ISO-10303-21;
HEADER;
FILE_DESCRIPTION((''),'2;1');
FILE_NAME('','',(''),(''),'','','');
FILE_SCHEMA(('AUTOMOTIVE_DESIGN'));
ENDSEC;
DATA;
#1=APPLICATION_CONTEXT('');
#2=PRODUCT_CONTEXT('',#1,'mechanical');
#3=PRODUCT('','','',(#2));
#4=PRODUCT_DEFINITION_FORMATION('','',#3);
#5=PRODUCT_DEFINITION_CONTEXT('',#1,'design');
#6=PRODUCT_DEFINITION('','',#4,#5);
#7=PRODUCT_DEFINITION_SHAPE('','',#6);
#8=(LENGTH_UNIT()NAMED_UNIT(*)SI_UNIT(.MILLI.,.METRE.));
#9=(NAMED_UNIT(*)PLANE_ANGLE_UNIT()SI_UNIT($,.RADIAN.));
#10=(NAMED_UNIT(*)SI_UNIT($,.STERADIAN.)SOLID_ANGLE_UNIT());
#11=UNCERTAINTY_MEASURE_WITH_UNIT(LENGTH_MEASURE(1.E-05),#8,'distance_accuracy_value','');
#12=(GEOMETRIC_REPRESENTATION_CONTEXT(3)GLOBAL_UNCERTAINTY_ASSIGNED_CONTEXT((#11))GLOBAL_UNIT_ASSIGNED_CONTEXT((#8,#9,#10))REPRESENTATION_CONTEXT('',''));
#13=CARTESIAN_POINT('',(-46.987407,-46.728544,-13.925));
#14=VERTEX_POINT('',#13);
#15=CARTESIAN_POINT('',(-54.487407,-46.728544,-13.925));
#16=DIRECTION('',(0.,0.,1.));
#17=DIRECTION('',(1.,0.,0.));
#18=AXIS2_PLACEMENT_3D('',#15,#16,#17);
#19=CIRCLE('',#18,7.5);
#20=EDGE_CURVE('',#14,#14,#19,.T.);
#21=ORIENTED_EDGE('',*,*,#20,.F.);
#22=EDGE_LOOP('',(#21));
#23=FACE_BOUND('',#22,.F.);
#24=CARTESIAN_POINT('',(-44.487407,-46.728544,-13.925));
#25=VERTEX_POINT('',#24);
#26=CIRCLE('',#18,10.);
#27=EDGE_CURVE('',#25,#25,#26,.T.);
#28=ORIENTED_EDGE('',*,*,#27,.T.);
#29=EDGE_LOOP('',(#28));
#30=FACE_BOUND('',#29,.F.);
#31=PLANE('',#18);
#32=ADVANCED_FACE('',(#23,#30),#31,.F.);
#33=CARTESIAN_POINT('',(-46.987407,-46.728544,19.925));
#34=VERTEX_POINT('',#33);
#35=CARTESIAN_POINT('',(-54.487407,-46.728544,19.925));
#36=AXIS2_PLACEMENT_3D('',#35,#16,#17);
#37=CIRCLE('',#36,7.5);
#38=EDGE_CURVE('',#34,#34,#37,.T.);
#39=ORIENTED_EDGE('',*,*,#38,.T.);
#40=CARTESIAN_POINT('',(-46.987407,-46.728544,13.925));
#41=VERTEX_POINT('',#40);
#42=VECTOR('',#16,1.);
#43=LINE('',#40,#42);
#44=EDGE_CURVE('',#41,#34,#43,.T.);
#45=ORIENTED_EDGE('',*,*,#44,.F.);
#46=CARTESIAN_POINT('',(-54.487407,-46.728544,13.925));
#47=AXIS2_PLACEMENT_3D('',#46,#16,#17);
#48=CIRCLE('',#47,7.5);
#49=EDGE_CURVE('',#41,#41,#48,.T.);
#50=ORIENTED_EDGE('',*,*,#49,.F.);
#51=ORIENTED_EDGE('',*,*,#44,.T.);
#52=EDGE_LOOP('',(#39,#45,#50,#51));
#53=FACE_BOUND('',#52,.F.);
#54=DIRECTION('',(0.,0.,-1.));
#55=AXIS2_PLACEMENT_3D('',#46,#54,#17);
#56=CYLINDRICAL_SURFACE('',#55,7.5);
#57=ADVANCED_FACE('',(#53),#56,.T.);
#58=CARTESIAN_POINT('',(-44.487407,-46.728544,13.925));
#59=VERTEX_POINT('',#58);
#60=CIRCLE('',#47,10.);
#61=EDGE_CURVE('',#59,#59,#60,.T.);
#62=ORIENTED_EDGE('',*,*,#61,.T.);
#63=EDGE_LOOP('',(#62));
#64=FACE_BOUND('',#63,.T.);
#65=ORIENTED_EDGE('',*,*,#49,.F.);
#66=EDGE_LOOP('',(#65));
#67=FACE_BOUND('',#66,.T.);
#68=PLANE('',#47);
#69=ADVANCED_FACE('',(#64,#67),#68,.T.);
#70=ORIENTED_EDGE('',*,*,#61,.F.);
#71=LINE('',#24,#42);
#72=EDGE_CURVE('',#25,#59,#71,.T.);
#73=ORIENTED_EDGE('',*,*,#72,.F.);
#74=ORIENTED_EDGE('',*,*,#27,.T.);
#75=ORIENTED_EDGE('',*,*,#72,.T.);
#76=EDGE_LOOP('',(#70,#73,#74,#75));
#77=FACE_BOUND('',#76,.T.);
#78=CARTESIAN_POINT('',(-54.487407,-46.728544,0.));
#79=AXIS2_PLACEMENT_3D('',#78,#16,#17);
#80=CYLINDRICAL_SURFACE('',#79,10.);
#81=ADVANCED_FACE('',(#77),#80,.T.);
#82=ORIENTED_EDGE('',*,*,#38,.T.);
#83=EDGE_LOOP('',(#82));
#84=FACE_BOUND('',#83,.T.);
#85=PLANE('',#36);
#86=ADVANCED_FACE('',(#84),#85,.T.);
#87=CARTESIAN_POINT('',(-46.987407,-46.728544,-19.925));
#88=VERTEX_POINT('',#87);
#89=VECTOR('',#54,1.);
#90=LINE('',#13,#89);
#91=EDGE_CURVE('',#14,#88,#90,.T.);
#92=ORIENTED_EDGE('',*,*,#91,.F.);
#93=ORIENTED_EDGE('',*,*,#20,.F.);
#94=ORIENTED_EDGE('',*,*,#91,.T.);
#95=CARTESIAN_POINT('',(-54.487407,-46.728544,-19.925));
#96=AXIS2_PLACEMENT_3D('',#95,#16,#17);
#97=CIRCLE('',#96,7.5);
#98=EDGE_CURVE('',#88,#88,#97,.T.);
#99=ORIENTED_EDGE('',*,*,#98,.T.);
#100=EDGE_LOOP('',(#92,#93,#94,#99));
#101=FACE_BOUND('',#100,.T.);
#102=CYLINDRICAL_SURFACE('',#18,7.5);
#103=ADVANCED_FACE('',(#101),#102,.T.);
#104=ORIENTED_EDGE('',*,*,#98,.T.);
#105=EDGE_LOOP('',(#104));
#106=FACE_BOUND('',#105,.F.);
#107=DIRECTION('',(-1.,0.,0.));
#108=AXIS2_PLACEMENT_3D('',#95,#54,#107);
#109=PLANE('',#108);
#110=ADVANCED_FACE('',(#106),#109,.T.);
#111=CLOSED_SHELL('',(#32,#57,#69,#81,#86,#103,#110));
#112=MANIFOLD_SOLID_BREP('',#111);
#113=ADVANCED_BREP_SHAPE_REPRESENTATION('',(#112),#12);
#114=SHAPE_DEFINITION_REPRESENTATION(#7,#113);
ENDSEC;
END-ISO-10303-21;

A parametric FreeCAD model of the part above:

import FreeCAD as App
import Part
import Sketcher
from FreeCAD import Vector

doc = App.newDocument("Part")
params = doc.addObject("Spreadsheet::Sheet", "Params")
for row, (alias, value) in enumerate([
    ("sketch1_diameter", "20 mm"),
    ("pad1_length", "27.85 mm"),
    ("sketch2_diameter", "15 mm"),
    ("pad2_length", "6 mm"),
], start=1):
    params.set(f"A{row}", alias)
    params.set(f"B{row}", "=" + value)
    params.setAlias(f"B{row}", alias)

body = doc.addObject("PartDesign::Body", "Body")

# Sketch on XY plane
sketch1 = doc.addObject("Sketcher::SketchObject", "Sketch")
body.addObject(sketch1)
sketch1.AttachmentSupport = (doc.XY_Plane, [""])
sketch1.MapMode = "FlatFace"
sketch1.addGeometry(Part.Circle(Vector(-54, -47, 0), Vector(0, 0, 1), 10), False)
sketch1.addConstraint(Sketcher.Constraint("Diameter", 0, 20.0))
sketch1.addConstraint(Sketcher.Constraint("DistanceX", 0, 3, -1, 1, 54.487407))
sketch1.addConstraint(Sketcher.Constraint("DistanceY", 0, 3, -1, 1, 46.728544))
sketch1.setExpression("Constraints[0]", "Params.sketch1_diameter")
pad1 = doc.addObject("PartDesign::Pad", "Pad")
body.addObject(pad1)
pad1.Profile = sketch1
pad1.setExpression("Length", "Params.pad1_length")
pad1.Midplane = True

# Sketch on XY plane
sketch2 = doc.addObject("Sketcher::SketchObject", "Sketch001")
body.addObject(sketch2)
sketch2.AttachmentSupport = (doc.XY_Plane, [""])
sketch2.MapMode = "FlatFace"
sketch2.AttachmentOffset = App.Placement(Vector(0, 0, 13.925), App.Rotation())
sketch2.addGeometry(Part.Circle(Vector(-54, -47, 0), Vector(0, 0, 1), 8), False)
sketch2.addConstraint(Sketcher.Constraint("Diameter", 0, 15.0))
sketch2.addConstraint(Sketcher.Constraint("DistanceX", 0, 3, -1, 1, 54.487407))
sketch2.addConstraint(Sketcher.Constraint("DistanceY", 0, 3, -1, 1, 46.728544))
sketch2.setExpression("Constraints[0]", "Params.sketch2_diameter")
pad2 = doc.addObject("PartDesign::Pad", "Pad001")
body.addObject(pad2)
pad2.Profile = sketch2
pad2.setExpression("Length", "Params.pad2_length")
body2 = doc.addObject("PartDesign::Body", "Body001")
doc.recompute()

body2.BaseFeature = body
doc.recompute()

mirroring = doc.addObject("Part::Mirroring", "Mirroring")
mirroring.Source = body
mirroring.Base = Vector(0, 0, 0)
mirroring.Normal = Vector(0, 0, 1)
body3 = doc.addObject("PartDesign::Body", "Body002")
body3.BaseFeature = mirroring
boolean = doc.addObject("PartDesign::Boolean", "Boolean")
body2.addObject(boolean)
boolean.Type = "Fuse"
boolean.addObjects([body3])
doc.recompute()
mirroring.Visibility = False

doc.recompute()
